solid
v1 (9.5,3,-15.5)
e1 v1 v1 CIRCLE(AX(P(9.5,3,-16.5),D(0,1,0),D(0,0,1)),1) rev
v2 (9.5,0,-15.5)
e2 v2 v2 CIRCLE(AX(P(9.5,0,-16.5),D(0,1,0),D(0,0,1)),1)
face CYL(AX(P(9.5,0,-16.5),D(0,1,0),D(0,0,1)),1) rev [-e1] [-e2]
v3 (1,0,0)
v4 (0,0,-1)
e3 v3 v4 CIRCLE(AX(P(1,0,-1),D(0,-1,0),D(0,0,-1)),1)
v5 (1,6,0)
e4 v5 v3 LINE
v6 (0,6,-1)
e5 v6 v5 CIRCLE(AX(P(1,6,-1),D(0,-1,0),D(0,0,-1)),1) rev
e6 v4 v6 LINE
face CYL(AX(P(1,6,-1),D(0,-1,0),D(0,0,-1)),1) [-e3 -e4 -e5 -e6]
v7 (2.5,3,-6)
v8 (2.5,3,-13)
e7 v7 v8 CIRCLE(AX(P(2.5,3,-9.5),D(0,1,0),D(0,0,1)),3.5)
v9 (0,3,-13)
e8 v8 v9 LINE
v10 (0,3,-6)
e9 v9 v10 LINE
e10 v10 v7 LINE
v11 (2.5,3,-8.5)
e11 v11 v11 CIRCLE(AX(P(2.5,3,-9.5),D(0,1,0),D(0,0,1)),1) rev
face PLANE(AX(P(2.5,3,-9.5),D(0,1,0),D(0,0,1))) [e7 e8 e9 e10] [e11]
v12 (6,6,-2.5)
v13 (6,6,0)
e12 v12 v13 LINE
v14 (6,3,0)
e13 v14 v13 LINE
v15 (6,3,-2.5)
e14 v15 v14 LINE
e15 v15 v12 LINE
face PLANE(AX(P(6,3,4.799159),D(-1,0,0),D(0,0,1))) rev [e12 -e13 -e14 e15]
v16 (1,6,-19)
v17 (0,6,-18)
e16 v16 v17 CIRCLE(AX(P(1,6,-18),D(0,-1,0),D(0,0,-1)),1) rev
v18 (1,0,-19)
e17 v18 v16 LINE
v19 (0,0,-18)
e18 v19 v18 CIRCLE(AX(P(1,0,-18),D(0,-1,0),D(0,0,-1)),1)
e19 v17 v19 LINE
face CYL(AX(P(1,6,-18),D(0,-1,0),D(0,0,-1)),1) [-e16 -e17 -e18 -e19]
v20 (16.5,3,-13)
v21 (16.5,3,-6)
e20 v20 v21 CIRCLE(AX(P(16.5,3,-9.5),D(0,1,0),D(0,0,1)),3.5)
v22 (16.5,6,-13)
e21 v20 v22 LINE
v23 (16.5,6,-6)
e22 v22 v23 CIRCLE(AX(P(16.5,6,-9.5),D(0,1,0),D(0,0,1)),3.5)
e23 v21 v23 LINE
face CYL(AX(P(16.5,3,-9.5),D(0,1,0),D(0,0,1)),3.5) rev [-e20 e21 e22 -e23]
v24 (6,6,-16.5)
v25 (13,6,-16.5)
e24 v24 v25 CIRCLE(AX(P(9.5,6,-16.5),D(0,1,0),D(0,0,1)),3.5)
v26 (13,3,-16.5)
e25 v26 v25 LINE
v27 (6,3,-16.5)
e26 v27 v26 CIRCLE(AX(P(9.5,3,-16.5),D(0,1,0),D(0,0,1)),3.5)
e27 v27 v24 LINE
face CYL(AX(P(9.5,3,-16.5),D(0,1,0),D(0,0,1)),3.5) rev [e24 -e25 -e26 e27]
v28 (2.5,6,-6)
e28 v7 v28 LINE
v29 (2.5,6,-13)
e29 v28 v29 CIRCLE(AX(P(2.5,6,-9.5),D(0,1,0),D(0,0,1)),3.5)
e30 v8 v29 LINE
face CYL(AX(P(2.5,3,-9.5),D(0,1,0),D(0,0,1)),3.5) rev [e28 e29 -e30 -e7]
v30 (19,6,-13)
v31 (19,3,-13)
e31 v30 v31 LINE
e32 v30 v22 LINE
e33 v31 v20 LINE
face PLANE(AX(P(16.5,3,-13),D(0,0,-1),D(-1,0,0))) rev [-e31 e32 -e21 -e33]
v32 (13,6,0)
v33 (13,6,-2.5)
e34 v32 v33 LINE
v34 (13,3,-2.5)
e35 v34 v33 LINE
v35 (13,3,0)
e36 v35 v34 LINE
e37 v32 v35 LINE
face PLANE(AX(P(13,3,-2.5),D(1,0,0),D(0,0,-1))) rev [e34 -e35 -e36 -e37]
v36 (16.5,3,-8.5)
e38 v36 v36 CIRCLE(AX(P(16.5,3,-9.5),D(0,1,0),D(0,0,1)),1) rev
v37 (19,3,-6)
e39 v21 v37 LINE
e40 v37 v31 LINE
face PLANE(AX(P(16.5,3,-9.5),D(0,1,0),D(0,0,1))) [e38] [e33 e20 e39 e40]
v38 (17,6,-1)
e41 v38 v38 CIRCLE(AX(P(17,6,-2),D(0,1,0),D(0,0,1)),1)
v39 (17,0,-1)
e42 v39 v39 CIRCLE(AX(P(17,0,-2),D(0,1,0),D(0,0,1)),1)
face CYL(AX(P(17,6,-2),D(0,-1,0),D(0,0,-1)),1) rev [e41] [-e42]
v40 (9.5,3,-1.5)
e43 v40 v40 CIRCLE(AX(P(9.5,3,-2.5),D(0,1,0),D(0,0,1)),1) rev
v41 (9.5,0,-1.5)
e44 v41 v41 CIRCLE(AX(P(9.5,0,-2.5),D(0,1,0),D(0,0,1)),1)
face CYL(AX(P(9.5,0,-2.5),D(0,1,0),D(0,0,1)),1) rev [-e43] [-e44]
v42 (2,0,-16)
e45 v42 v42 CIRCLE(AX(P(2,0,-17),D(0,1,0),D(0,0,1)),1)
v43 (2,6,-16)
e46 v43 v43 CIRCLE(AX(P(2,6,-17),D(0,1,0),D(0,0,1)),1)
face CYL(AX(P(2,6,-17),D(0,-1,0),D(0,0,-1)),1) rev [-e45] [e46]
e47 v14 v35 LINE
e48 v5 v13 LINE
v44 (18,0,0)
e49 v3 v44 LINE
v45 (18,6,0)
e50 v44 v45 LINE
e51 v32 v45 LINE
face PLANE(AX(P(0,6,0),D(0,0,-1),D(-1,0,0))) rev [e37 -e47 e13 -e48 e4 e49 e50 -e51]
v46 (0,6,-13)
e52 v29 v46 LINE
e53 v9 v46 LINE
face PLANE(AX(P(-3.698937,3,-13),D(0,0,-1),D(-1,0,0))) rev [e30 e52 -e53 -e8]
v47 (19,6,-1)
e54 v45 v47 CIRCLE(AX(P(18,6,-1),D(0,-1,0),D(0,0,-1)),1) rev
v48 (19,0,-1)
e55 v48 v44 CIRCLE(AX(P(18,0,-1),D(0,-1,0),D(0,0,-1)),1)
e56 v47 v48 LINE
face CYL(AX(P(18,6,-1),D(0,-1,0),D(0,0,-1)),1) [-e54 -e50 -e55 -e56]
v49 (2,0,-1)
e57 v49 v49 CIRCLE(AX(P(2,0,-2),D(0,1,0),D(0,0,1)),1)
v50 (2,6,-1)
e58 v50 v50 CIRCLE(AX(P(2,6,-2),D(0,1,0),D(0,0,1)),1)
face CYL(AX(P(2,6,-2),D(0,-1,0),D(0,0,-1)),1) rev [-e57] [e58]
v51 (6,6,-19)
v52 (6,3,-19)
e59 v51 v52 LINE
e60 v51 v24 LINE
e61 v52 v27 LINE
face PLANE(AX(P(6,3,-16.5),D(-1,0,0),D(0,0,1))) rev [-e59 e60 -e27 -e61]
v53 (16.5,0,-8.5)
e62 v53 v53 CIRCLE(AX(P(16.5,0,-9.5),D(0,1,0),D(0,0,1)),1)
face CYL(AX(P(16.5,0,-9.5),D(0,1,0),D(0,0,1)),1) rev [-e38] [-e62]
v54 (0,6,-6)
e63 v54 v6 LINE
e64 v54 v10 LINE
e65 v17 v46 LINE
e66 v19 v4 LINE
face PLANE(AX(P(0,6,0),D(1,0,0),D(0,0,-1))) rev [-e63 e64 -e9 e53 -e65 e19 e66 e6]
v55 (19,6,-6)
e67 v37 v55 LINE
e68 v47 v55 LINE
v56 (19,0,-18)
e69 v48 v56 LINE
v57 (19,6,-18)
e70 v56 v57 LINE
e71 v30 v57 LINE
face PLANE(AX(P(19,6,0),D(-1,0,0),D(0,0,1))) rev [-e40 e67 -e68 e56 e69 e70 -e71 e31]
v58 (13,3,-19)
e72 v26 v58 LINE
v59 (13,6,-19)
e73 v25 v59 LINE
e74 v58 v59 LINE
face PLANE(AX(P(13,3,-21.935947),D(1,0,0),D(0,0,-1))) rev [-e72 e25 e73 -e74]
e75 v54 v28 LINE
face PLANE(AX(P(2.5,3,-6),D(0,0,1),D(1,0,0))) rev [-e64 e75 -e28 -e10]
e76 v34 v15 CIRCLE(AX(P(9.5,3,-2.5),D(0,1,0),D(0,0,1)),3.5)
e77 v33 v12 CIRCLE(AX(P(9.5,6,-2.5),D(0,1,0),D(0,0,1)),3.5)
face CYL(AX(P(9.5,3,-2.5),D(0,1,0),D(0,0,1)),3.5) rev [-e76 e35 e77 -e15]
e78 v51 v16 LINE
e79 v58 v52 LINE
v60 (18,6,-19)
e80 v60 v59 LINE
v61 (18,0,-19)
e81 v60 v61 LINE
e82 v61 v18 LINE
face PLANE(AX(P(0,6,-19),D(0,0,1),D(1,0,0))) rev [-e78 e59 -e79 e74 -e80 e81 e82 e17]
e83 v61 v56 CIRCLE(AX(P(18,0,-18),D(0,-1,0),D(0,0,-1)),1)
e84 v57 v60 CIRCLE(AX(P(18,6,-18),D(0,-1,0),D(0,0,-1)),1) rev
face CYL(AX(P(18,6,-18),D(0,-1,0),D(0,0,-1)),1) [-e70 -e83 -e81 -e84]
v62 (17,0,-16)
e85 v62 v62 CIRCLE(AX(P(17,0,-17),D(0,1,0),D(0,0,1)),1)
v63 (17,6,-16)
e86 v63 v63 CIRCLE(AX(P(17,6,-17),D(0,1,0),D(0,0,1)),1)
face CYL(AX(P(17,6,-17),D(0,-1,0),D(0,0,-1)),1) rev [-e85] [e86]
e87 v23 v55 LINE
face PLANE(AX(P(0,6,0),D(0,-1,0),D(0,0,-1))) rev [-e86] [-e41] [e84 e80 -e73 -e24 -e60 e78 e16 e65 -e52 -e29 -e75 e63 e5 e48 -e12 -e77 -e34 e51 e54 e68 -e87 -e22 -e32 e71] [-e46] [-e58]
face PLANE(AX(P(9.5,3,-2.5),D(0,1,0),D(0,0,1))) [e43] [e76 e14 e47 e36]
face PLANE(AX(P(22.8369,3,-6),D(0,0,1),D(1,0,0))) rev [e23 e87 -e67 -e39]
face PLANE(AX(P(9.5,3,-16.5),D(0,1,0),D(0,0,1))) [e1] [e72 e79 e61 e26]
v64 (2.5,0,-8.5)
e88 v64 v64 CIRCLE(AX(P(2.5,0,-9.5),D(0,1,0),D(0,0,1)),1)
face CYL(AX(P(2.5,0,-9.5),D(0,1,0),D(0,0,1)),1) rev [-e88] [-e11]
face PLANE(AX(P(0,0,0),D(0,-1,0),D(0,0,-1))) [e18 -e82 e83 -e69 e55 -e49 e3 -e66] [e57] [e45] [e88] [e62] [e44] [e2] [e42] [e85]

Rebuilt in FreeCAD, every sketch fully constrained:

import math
import FreeCAD as App
import Part
import Sketcher
from FreeCAD import Vector
Q = App.Units.Quantity


def edges_at(feature, points):
    """Names of the edges that pass closest to the given points."""
    edges = feature.Shape.Edges
    near = lambda p: min(range(len(edges)), key=lambda i: edges[i].distToShape(Part.Vertex(*p))[0])
    return sorted({f"Edge{near(p) + 1}" for p in points})


def add_polygon(sketch, points):
    """Adds a closed chain of lines whose ends are joined by coincident constraints."""
    first, n = sketch.GeometryCount, len(points)
    for a, b in zip(points, points[1:] + points[:1]):
        sketch.addGeometry(Part.LineSegment(App.Vector(*a, 0), App.Vector(*b, 0)), False)
    for i in range(n):
        sketch.addConstraint(Sketcher.Constraint("Coincident", first + i, 2, first + (i + 1) % n, 1))

doc = App.newDocument("Part")
body = doc.addObject("PartDesign::Body", "Body")

sketch1 = doc.addObject("Sketcher::SketchObject", "Sketch")
body.addObject(sketch1)
sketch1.AttachmentSupport = (doc.XZ_Plane, [""])
sketch1.MapMode = "FlatFace"
add_polygon(sketch1, [(0, -19), (0, 0), (19, 0), (19, -19)])
sketch1.addGeometry(Part.Circle(Vector(2, -2, 0), Vector(0, 0, 1), 1), False)
sketch1.addGeometry(Part.Circle(Vector(17, -2, 0), Vector(0, 0, 1), 1), False)
sketch1.addGeometry(Part.Circle(Vector(2, -17, 0), Vector(0, 0, 1), 1), False)
sketch1.addGeometry(Part.Circle(Vector(17, -17, 0), Vector(0, 0, 1), 1), False)
sketch1.addConstraint([
    Sketcher.Constraint("Vertical", 0),
    Sketcher.Constraint("Horizontal", 1),
    Sketcher.Constraint("Vertical", 2),
    Sketcher.Constraint("Horizontal", 3),
    Sketcher.Constraint("Coincident", 0, 2, -1, 1),
    Sketcher.Constraint("Equal", 4, 5),
    Sketcher.Constraint("Equal", 5, 6),
    Sketcher.Constraint("Equal", 6, 7),
    Sketcher.Constraint("Horizontal", 4, 3, 5, 3),
    Sketcher.Constraint("Horizontal", 6, 3, 7, 3),
    Sketcher.Constraint("Vertical", 4, 3, 6, 3),
    Sketcher.Constraint("Vertical", 5, 3, 7, 3),
    Sketcher.Constraint("Equal", 3, 0),
    Sketcher.Constraint("Diameter", 4, Q("2 mm")),
    Sketcher.Constraint("DistanceX", 1, 1, 1, 2, Q("19 mm")),
    Sketcher.Constraint("DistanceX", -1, 1, 4, 3, Q("2 mm")),
    Sketcher.Constraint("DistanceY", 4, 3, -1, 1, Q("2 mm")),
    Sketcher.Constraint("DistanceX", -1, 1, 5, 3, Q("17 mm")),
    Sketcher.Constraint("DistanceY", 6, 3, -1, 1, Q("17 mm")),
])
pad1 = doc.addObject("PartDesign::Pad", "Pad")
body.addObject(pad1)
pad1.Profile = sketch1
pad1.Length = 6
pad1.Reversed = True
doc.recompute()

fillet = doc.addObject("PartDesign::Fillet", "Fillet")
body.addObject(fillet)
fillet.Base = (pad1, edges_at(pad1, [
    (0, 3, -19),
    (19, 3, -19),
    (19, 3, 0),
    (0, 3, 0),
]))
fillet.Radius = 1

sketch2 = doc.addObject("Sketcher::SketchObject", "Sketch001")
body.addObject(sketch2)
sketch2.AttachmentSupport = (doc.XZ_Plane, [""])
sketch2.MapMode = "FlatFace"
sketch2.AttachmentOffset = App.Placement(Vector(0, 0, -6), App.Rotation())
sketch2.addGeometry([
    Part.Circle(Vector(9.5, -16.5, 0), Vector(0, 0, 1), 1),
    Part.Circle(Vector(16.5, -9.5, 0), Vector(0, 0, 1), 1),
    Part.Circle(Vector(9.5, -2.5, 0), Vector(0, 0, 1), 1),
    Part.Circle(Vector(2.5, -9.5, 0), Vector(0, 0, 1), 1),
], False)
sketch2.addConstraint([
    Sketcher.Constraint("Equal", 0, 1),
    Sketcher.Constraint("Equal", 1, 2),
    Sketcher.Constraint("Equal", 2, 3),
    Sketcher.Constraint("Horizontal", 1, 3, 3, 3),
    Sketcher.Constraint("Vertical", 0, 3, 2, 3),
    Sketcher.Constraint("Diameter", 0, Q("2 mm")),
    Sketcher.Constraint("DistanceX", 0, 3, 1, 3, Q("7 mm")),
    Sketcher.Constraint("DistanceY", 0, 3, 1, 3, Q("7 mm")),
    Sketcher.Constraint("DistanceY", 1, 3, 2, 3, Q("7 mm")),
    Sketcher.Constraint("DistanceX", 3, 3, 0, 3, Q("7 mm")),
    Sketcher.Constraint("DistanceX", -1, 1, 0, 3, Q("9.5 mm")),
    Sketcher.Constraint("DistanceY", 0, 3, -1, 1, Q("16.5 mm")),
])
pocket1 = doc.addObject("PartDesign::Pocket", "Pocket")
body.addObject(pocket1)
pocket1.Profile = sketch2
pocket1.Type = "ThroughAll"
pocket1.Reversed = True

sketch3 = doc.addObject("Sketcher::SketchObject", "Sketch002")
body.addObject(sketch3)
sketch3.AttachmentSupport = (doc.XZ_Plane, [""])
sketch3.MapMode = "FlatFace"
sketch3.AttachmentOffset = App.Placement(Vector(0, 0, -6), App.Rotation())
sketch3.addGeometry([
    Part.LineSegment(Vector(6, -21.9, 0), Vector(6, -16.5, 0)),
    Part.ArcOfCircle(Part.Circle(Vector(9.5, -16.5, 0), Vector(0, 0, 1), 3.5), math.radians(0), math.radians(180)),
    Part.LineSegment(Vector(13, -16.5, 0), Vector(13, -21.9, 0)),
    Part.LineSegment(Vector(13, -21.9, 0), Vector(6, -21.9, 0)),
    Part.LineSegment(Vector(13, 5.1, 0), Vector(13, -2.5, 0)),
    Part.ArcOfCircle(Part.Circle(Vector(9.5, -2.5, 0), Vector(0, 0, 1), 3.5), math.radians(180), math.radians(360)),
    Part.LineSegment(Vector(6, -2.5, 0), Vector(6, 4.8, 0)),
    Part.LineSegment(Vector(6, 4.8, 0), Vector(13, 5.1, 0)),
    Part.LineSegment(Vector(-3.7, -6, 0), Vector(2.5, -6, 0)),
    Part.ArcOfCircle(Part.Circle(Vector(2.5, -9.5, 0), Vector(0, 0, 1), 3.5), math.radians(-90), math.radians(90)),
    Part.LineSegment(Vector(2.5, -13, 0), Vector(-3.7, -13, 0)),
    Part.LineSegment(Vector(-3.7, -13, 0), Vector(-3.7, -6, 0)),
    Part.LineSegment(Vector(22.8, -6, 0), Vector(22.8, -13, 0)),
    Part.LineSegment(Vector(22.8, -13, 0), Vector(16.5, -13, 0)),
    Part.ArcOfCircle(Part.Circle(Vector(16.5, -9.5, 0), Vector(0, 0, 1), 3.5), math.radians(90), math.radians(270)),
    Part.LineSegment(Vector(16.5, -6, 0), Vector(22.8, -6, 0)),
], False)
sketch3.addConstraint([
    Sketcher.Constraint("Tangent", 0, 2, 1, 2),
    Sketcher.Constraint("Tangent", 1, 1, 2, 1),
    Sketcher.Constraint("Coincident", 2, 2, 3, 1),
    Sketcher.Constraint("Coincident", 3, 2, 0, 1),
    Sketcher.Constraint("Tangent", 4, 2, 5, 2),
    Sketcher.Constraint("Tangent", 5, 1, 6, 1),
    Sketcher.Constraint("Coincident", 6, 2, 7, 1),
    Sketcher.Constraint("Coincident", 7, 2, 4, 1),
    Sketcher.Constraint("Tangent", 8, 2, 9, 2),
    Sketcher.Constraint("Tangent", 9, 1, 10, 1),
    Sketcher.Constraint("Coincident", 10, 2, 11, 1),
    Sketcher.Constraint("Coincident", 11, 2, 8, 1),
    Sketcher.Constraint("Coincident", 12, 2, 13, 1),
    Sketcher.Constraint("Tangent", 13, 2, 14, 2),
    Sketcher.Constraint("Tangent", 14, 1, 15, 1),
    Sketcher.Constraint("Coincident", 15, 2, 12, 1),
    Sketcher.Constraint("Vertical", 0),
    Sketcher.Constraint("Vertical", 2),
    Sketcher.Constraint("Horizontal", 3),
    Sketcher.Constraint("Vertical", 4),
    Sketcher.Constraint("Vertical", 6),
    Sketcher.Constraint("Horizontal", 8),
    Sketcher.Constraint("Horizontal", 10),
    Sketcher.Constraint("Vertical", 11),
    Sketcher.Constraint("Vertical", 12),
    Sketcher.Constraint("Horizontal", 13),
    Sketcher.Constraint("Horizontal", 15),
    Sketcher.Constraint("Equal", 1, 5),
    Sketcher.Constraint("Equal", 5, 9),
    Sketcher.Constraint("Equal", 9, 14),
    Sketcher.Constraint("Horizontal", 9, 3, 14, 3),
    Sketcher.Constraint("Vertical", 1, 3, 5, 3),
    Sketcher.Constraint("Radius", 1, Q("3.5 mm")),
    Sketcher.Constraint("DistanceX", -1, 1, 0, 2, Q("6 mm")),
    Sketcher.Constraint("DistanceY", 8, 2, -1, 1, Q("6 mm")),
    Sketcher.Constraint("DistanceY", 1, 3, 5, 3, Q("14 mm")),
    Sketcher.Constraint("DistanceX", 9, 3, 1, 3, Q("7 mm")),
    Sketcher.Constraint("DistanceY", 1, 3, 9, 3, Q("7 mm")),
    Sketcher.Constraint("DistanceX", 1, 3, 14, 3, Q("7 mm")),
    Sketcher.Constraint("DistanceX", 13, 2, 13, 1, Q("6.3369 mm")),
    Sketcher.Constraint("DistanceY", 6, 1, 6, 2, Q("7.299159 mm")),
    Sketcher.Constraint("Distance", 7, Q("7.006588 mm")),
    Sketcher.Constraint("DistanceX", 8, 1, 8, 2, Q("6.198937 mm")),
    Sketcher.Constraint("DistanceY", 0, 1, 0, 2, Q("5.435947 mm")),
])
pocket2 = doc.addObject("PartDesign::Pocket", "Pocket001")
body.addObject(pocket2)
pocket2.Profile = sketch3
pocket2.Length = 3
pocket2.Reversed = True

doc.recompute()
